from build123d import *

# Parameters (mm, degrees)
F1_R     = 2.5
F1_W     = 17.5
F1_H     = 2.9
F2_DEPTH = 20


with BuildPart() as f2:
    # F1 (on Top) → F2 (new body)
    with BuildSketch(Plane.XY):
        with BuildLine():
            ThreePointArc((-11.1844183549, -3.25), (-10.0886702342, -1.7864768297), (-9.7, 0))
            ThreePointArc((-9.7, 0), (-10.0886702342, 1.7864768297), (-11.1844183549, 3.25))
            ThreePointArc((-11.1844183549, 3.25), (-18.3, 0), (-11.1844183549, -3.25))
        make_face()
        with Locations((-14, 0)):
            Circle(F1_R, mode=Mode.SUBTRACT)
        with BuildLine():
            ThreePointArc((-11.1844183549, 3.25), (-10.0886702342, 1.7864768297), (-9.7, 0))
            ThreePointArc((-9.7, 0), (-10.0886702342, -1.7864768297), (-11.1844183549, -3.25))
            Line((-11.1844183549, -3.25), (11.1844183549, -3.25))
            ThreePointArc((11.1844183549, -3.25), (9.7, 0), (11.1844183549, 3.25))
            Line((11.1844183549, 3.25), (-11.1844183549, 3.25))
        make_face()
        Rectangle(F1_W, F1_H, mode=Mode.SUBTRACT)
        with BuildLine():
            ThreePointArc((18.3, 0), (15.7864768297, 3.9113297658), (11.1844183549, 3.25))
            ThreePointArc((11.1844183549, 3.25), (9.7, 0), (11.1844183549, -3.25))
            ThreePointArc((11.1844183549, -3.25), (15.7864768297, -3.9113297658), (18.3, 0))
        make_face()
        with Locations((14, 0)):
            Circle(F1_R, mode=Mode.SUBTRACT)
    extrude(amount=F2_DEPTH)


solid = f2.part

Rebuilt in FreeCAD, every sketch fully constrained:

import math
import FreeCAD as App
import Part
import Sketcher
from FreeCAD import Vector


def add_polygon(sketch, points):
    """Adds a closed chain of lines whose ends are joined by coincident constraints."""
    first, n = sketch.GeometryCount, len(points)
    for a, b in zip(points, points[1:] + points[:1]):
        sketch.addGeometry(Part.LineSegment(App.Vector(*a, 0), App.Vector(*b, 0)), False)
    for i in range(n):
        sketch.addConstraint(Sketcher.Constraint("Coincident", first + i, 2, first + (i + 1) % n, 1))

doc = App.newDocument("Part")
params = doc.addObject("Spreadsheet::Sheet", "Params")
for row, (alias, value) in enumerate([
    ("sketch1_diameter", "5 mm"),
    ("sketch1_radius", "4.3 mm"),
    ("sketch1_width", "17.5 mm"),
    ("sketch1_height", "2.9 mm"),
    ("pad1_length", "20 mm"),
], start=1):
    params.set(f"A{row}", alias)
    params.set(f"B{row}", "=" + value)
    params.setAlias(f"B{row}", alias)

body = doc.addObject("PartDesign::Body", "Body")

# Sketch on XY plane
sketch1 = body.newObject("Sketcher::SketchObject", "Sketch")
sketch1.AttachmentSupport = (doc.getObject("XY_Plane"), [""])
sketch1.MapMode = "FlatFace"
sketch1.addGeometry(Part.ArcOfCircle(Part.Circle(Vector(-14, 0, 0), Vector(0, 0, 1), 4.3), math.radians(49), math.radians(311)), False)  # 0
sketch1.addGeometry(Part.LineSegment(Vector(-11.2, -3.2, 0), Vector(11.2, -3.2, 0)), False)  # 1
sketch1.addGeometry(Part.ArcOfCircle(Part.Circle(Vector(14, 0, 0), Vector(0, 0, 1), 4.3), math.radians(-131), math.radians(0)), False)  # 2
sketch1.addGeometry(Part.ArcOfCircle(Part.Circle(Vector(14, 0, 0), Vector(0, 0, 1), 4.3), math.radians(0), math.radians(131)), False)  # 3
sketch1.addGeometry(Part.LineSegment(Vector(11.2, 3.2, 0), Vector(-11.2, 3.2, 0)), False)  # 4
sketch1.addGeometry(Part.Circle(Vector(-14, 0, 0), Vector(0, 0, 1), 2.5), False)  # 5
add_polygon(sketch1, [(8.8, -1.4), (-8.8, -1.4), (-8.8, 1.4), (8.8, 1.4)])  # lines 6-9
sketch1.addGeometry(Part.Circle(Vector(14, 0, 0), Vector(0, 0, 1), 2.5), False)  # 10
sketch1.addConstraint(Sketcher.Constraint("Coincident", 0, 2, 1, 1))
sketch1.addConstraint(Sketcher.Constraint("Coincident", 1, 2, 2, 1))
sketch1.addConstraint(Sketcher.Constraint("Tangent", 2, 2, 3, 1))
sketch1.addConstraint(Sketcher.Constraint("Coincident", 3, 2, 4, 1))
sketch1.addConstraint(Sketcher.Constraint("Coincident", 4, 2, 0, 1))
sketch1.addConstraint(Sketcher.Constraint("Horizontal", 1))
sketch1.addConstraint(Sketcher.Constraint("Horizontal", 4))
sketch1.addConstraint(Sketcher.Constraint("Horizontal", 6))
sketch1.addConstraint(Sketcher.Constraint("Vertical", 7))
sketch1.addConstraint(Sketcher.Constraint("Horizontal", 8))
sketch1.addConstraint(Sketcher.Constraint("Vertical", 9))
sketch1.addConstraint(Sketcher.Constraint("Coincident", 5, 3, 0, 3))
sketch1.addConstraint(Sketcher.Constraint("Coincident", 10, 3, 2, 3))
sketch1.addConstraint(Sketcher.Constraint("Equal", 0, 2))
sketch1.addConstraint(Sketcher.Constraint("Equal", 2, 3))
sketch1.addConstraint(Sketcher.Constraint("Equal", 5, 10))
sketch1.addConstraint(Sketcher.Constraint("Symmetric", 0, 3, 2, 3, -1, 1))
sketch1.addConstraint(Sketcher.Constraint("Symmetric", 6, 2, 8, 2, -1, 1))
sketch1.addConstraint(Sketcher.Constraint("Symmetric", 1, 2, 3, 2, -1))
sketch1.addConstraint(Sketcher.Constraint("PointOnObject", 2, 2, -1))
sketch1.addConstraint(Sketcher.Constraint("Diameter", 5, 5.0))
sketch1.addConstraint(Sketcher.Constraint("Radius", 0, 4.3))
sketch1.addConstraint(Sketcher.Constraint("DistanceX", 6, 2, 6, 1, 17.5))
sketch1.addConstraint(Sketcher.Constraint("DistanceY", 7, 1, 7, 2, 2.9))
sketch1.addConstraint(Sketcher.Constraint("DistanceX", 0, 3, -1, 1, 14.0))
sketch1.addConstraint(Sketcher.Constraint("DistanceY", 1, 2, 3, 2, 6.5))
sketch1.setExpression("Constraints[24]", "Params.sketch1_diameter")
sketch1.setExpression("Constraints[25]", "Params.sketch1_radius")
sketch1.setExpression("Constraints[26]", "Params.sketch1_width")
sketch1.setExpression("Constraints[27]", "Params.sketch1_height")
pad1 = body.newObject("PartDesign::Pad", "Pad")
pad1.Profile = sketch1
pad1.setExpression("Length", "Params.pad1_length")

doc.recompute()
